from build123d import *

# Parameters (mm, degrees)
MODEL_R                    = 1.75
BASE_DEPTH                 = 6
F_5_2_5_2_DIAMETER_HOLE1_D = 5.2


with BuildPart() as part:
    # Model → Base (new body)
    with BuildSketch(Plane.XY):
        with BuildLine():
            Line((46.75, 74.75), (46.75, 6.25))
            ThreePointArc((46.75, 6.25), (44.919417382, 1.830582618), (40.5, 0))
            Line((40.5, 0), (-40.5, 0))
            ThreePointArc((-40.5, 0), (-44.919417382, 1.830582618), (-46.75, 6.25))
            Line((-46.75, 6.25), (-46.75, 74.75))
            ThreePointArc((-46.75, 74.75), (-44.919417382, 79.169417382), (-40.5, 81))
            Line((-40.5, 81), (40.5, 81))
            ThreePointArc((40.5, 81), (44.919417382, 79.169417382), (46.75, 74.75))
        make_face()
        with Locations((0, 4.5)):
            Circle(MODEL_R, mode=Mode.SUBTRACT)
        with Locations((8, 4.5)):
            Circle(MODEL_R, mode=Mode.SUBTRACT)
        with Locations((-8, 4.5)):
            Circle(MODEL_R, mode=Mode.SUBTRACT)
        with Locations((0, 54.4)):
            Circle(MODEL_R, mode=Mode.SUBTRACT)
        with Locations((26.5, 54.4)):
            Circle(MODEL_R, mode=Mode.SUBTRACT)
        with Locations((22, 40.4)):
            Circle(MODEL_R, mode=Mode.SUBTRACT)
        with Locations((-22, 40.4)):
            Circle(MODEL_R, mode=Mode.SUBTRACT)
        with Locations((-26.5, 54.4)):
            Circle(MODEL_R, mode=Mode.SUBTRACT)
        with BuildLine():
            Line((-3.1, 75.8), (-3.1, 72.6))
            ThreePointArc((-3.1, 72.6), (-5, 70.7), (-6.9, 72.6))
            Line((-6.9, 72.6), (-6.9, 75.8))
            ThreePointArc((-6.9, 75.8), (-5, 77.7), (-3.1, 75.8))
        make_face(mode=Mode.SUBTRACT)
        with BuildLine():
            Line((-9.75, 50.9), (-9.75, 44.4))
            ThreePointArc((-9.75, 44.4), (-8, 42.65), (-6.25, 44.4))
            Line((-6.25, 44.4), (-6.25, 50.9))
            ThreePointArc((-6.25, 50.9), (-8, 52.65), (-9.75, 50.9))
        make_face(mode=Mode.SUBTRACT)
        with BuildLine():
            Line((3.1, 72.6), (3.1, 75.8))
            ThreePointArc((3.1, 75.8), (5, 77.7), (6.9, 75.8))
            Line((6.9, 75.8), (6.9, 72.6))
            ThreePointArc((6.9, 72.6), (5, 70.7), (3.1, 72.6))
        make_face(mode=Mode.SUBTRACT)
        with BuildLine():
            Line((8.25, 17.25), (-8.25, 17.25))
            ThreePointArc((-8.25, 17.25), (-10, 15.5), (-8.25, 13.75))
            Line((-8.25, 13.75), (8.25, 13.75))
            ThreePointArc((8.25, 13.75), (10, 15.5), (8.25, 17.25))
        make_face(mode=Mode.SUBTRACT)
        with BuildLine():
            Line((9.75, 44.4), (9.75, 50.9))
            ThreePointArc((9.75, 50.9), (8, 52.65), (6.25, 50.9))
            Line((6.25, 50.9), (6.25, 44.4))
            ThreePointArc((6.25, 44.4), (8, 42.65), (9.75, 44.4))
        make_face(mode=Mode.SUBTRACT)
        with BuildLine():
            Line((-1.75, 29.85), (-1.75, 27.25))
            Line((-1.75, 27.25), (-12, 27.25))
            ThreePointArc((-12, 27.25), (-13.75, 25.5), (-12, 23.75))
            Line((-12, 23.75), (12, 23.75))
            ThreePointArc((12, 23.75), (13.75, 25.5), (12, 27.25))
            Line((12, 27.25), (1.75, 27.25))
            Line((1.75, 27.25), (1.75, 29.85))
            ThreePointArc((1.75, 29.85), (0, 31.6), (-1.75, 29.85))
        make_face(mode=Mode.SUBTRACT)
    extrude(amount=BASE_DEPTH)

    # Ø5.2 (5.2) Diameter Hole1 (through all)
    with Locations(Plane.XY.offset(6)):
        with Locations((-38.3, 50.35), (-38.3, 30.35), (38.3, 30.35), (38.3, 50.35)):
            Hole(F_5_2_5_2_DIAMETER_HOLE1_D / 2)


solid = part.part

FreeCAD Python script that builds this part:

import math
import FreeCAD as App
import Part
import Sketcher
Q = App.Units.Quantity

doc = App.newDocument("Part")
body = doc.addObject("PartDesign::Body", "Body")

sketch1 = doc.addObject("Sketcher::SketchObject", "Sketch")
body.addObject(sketch1)
sketch1.AttachmentSupport = (doc.XY_Plane, [""])
sketch1.MapMode = "FlatFace"
sketch1.addGeometry([
    Part.LineSegment(App.Vector(46.8, 6.2, 0), App.Vector(46.8, 74.8, 0)),
    Part.ArcOfCircle(Part.Circle(App.Vector(40.5, 74.7, 0), App.Vector(0, 0, 1), 6.3), math.radians(0), math.radians(90)),
    Part.LineSegment(App.Vector(40.5, 81, 0), App.Vector(-40.5, 81, 0)),
    Part.ArcOfCircle(Part.Circle(App.Vector(-40.5, 74.7, 0), App.Vector(0, 0, 1), 6.3), math.radians(90), math.radians(180)),
    Part.LineSegment(App.Vector(-46.8, 74.8, 0), App.Vector(-46.8, 6.2, 0)),
    Part.ArcOfCircle(Part.Circle(App.Vector(-40.5, 6.3, 0), App.Vector(0, 0, 1), 6.3), math.radians(-180), math.radians(-90)),
    Part.LineSegment(App.Vector(-40.5, 0, 0), App.Vector(40.5, 0, 0)),
    Part.ArcOfCircle(Part.Circle(App.Vector(40.5, 6.3, 0), App.Vector(0, 0, 1), 6.3), math.radians(-90), math.radians(0)),
    Part.Circle(App.Vector(8, 4.5, 0), App.Vector(0, 0, 1), 1.8),
    Part.Circle(App.Vector(0, 4.5, 0), App.Vector(0, 0, 1), 1.8),
    Part.Circle(App.Vector(-8, 4.5, 0), App.Vector(0, 0, 1), 1.8),
    Part.ArcOfCircle(Part.Circle(App.Vector(8.2, 15.5, 0), App.Vector(0, 0, 1), 1.8), math.radians(-90), math.radians(90)),
    Part.LineSegment(App.Vector(8.2, 13.8, 0), App.Vector(-8.2, 13.8, 0)),
    Part.ArcOfCircle(Part.Circle(App.Vector(-8.2, 15.5, 0), App.Vector(0, 0, 1), 1.8), math.radians(90), math.radians(270)),
    Part.LineSegment(App.Vector(-8.2, 17.2, 0), App.Vector(8.2, 17.2, 0)),
    Part.ArcOfCircle(Part.Circle(App.Vector(0, 29.9, 0), App.Vector(0, 0, 1), 1.8), math.radians(0), math.radians(180)),
    Part.LineSegment(App.Vector(1.8, 29.9, 0), App.Vector(1.8, 27.2, 0)),
    Part.LineSegment(App.Vector(1.8, 27.2, 0), App.Vector(12, 27.2, 0)),
    Part.ArcOfCircle(Part.Circle(App.Vector(12, 25.5, 0), App.Vector(0, 0, 1), 1.8), math.radians(-90), math.radians(90)),
    Part.LineSegment(App.Vector(12, 23.8, 0), App.Vector(-12, 23.8, 0)),
    Part.ArcOfCircle(Part.Circle(App.Vector(-12, 25.5, 0), App.Vector(0, 0, 1), 1.8), math.radians(90), math.radians(270)),
    Part.LineSegment(App.Vector(-12, 27.2, 0), App.Vector(-1.8, 27.2, 0)),
    Part.LineSegment(App.Vector(-1.8, 27.2, 0), App.Vector(-1.8, 29.9, 0)),
    Part.Circle(App.Vector(22, 40.4, 0), App.Vector(0, 0, 1), 1.8),
    Part.Circle(App.Vector(26.5, 54.4, 0), App.Vector(0, 0, 1), 1.8),
    Part.ArcOfCircle(Part.Circle(App.Vector(8, 44.4, 0), App.Vector(0, 0, 1), 1.8), math.radians(180), math.radians(360)),
    Part.LineSegment(App.Vector(6.2, 44.4, 0), App.Vector(6.2, 50.9, 0)),
    Part.ArcOfCircle(Part.Circle(App.Vector(8, 50.9, 0), App.Vector(0, 0, 1), 1.8), math.radians(0), math.radians(180)),
    Part.LineSegment(App.Vector(9.8, 50.9, 0), App.Vector(9.8, 44.4, 0)),
    Part.LineSegment(App.Vector(3.1, 72.6, 0), App.Vector(3.1, 75.8, 0)),
    Part.ArcOfCircle(Part.Circle(App.Vector(5, 75.8, 0), App.Vector(0, 0, 1), 1.9), math.radians(0), math.radians(180)),
    Part.LineSegment(App.Vector(6.9, 75.8, 0), App.Vector(6.9, 72.6, 0)),
    Part.ArcOfCircle(Part.Circle(App.Vector(5, 72.6, 0), App.Vector(0, 0, 1), 1.9), math.radians(180), math.radians(360)),
    Part.ArcOfCircle(Part.Circle(App.Vector(-8, 50.9, 0), App.Vector(0, 0, 1), 1.8), math.radians(0), math.radians(180)),
    Part.LineSegment(App.Vector(-6.2, 50.9, 0), App.Vector(-6.2, 44.4, 0)),
    Part.ArcOfCircle(Part.Circle(App.Vector(-8, 44.4, 0), App.Vector(0, 0, 1), 1.8), math.radians(180), math.radians(360)),
    Part.LineSegment(App.Vector(-9.8, 44.4, 0), App.Vector(-9.8, 50.9, 0)),
    Part.Circle(App.Vector(0, 54.4, 0), App.Vector(0, 0, 1), 1.8),
    Part.Circle(App.Vector(-22, 40.4, 0), App.Vector(0, 0, 1), 1.8),
    Part.Circle(App.Vector(-26.5, 54.4, 0), App.Vector(0, 0, 1), 1.8),
    Part.LineSegment(App.Vector(-3.1, 75.8, 0), App.Vector(-3.1, 72.6, 0)),
    Part.ArcOfCircle(Part.Circle(App.Vector(-5, 72.6, 0), App.Vector(0, 0, 1), 1.9), math.radians(180), math.radians(360)),
    Part.LineSegment(App.Vector(-6.9, 72.6, 0), App.Vector(-6.9, 75.8, 0)),
    Part.ArcOfCircle(Part.Circle(App.Vector(-5, 75.8, 0), App.Vector(0, 0, 1), 1.9), math.radians(0), math.radians(180)),
], False)
sketch1.addConstraint([
    Sketcher.Constraint("Tangent", 0, 2, 1, 1),
    Sketcher.Constraint("Tangent", 1, 2, 2, 1),
    Sketcher.Constraint("Tangent", 2, 2, 3, 1),
    Sketcher.Constraint("Tangent", 3, 2, 4, 1),
    Sketcher.Constraint("Tangent", 4, 2, 5, 1),
    Sketcher.Constraint("Tangent", 5, 2, 6, 1),
    Sketcher.Constraint("Tangent", 6, 2, 7, 1),
    Sketcher.Constraint("Tangent", 7, 2, 0, 1),
    Sketcher.Constraint("Tangent", 11, 1, 12, 1),
    Sketcher.Constraint("Tangent", 12, 2, 13, 2),
    Sketcher.Constraint("Tangent", 13, 1, 14, 1),
    Sketcher.Constraint("Tangent", 14, 2, 11, 2),
    Sketcher.Constraint("Tangent", 15, 1, 16, 1),
    Sketcher.Constraint("Coincident", 16, 2, 17, 1),
    Sketcher.Constraint("Tangent", 17, 2, 18, 2),
    Sketcher.Constraint("Tangent", 18, 1, 19, 1),
    Sketcher.Constraint("Tangent", 19, 2, 20, 2),
    Sketcher.Constraint("Tangent", 20, 1, 21, 1),
    Sketcher.Constraint("Coincident", 21, 2, 22, 1),
    Sketcher.Constraint("Tangent", 22, 2, 15, 2),
    Sketcher.Constraint("Tangent", 25, 1, 26, 1),
    Sketcher.Constraint("Tangent", 26, 2, 27, 2),
    Sketcher.Constraint("Tangent", 27, 1, 28, 1),
    Sketcher.Constraint("Tangent", 28, 2, 25, 2),
    Sketcher.Constraint("Tangent", 29, 2, 30, 2),
    Sketcher.Constraint("Tangent", 30, 1, 31, 1),
    Sketcher.Constraint("Tangent", 31, 2, 32, 2),
    Sketcher.Constraint("Tangent", 32, 1, 29, 1),
    Sketcher.Constraint("Tangent", 33, 1, 34, 1),
    Sketcher.Constraint("Tangent", 34, 2, 35, 2),
    Sketcher.Constraint("Tangent", 35, 1, 36, 1),
    Sketcher.Constraint("Tangent", 36, 2, 33, 2),
    Sketcher.Constraint("Tangent", 40, 2, 41, 2),
    Sketcher.Constraint("Tangent", 41, 1, 42, 1),
    Sketcher.Constraint("Tangent", 42, 2, 43, 2),
    Sketcher.Constraint("Tangent", 43, 1, 40, 1),
    Sketcher.Constraint("Vertical", 0),
    Sketcher.Constraint("Horizontal", 2),
    Sketcher.Constraint("Vertical", 4),
    Sketcher.Constraint("Horizontal", 6),
    Sketcher.Constraint("Horizontal", 12),
    Sketcher.Constraint("Horizontal", 14),
    Sketcher.Constraint("Vertical", 16),
    Sketcher.Constraint("Horizontal", 17),
    Sketcher.Constraint("Horizontal", 19),
    Sketcher.Constraint("Horizontal", 21),
    Sketcher.Constraint("Vertical", 22),
    Sketcher.Constraint("Vertical", 26),
    Sketcher.Constraint("Vertical", 28),
    Sketcher.Constraint("Vertical", 29),
    Sketcher.Constraint("Vertical", 31),
    Sketcher.Constraint("Vertical", 34),
    Sketcher.Constraint("Vertical", 36),
    Sketcher.Constraint("Vertical", 40),
    Sketcher.Constraint("Vertical", 42),
    Sketcher.Constraint("Equal", 1, 3),
    Sketcher.Constraint("Equal", 3, 5),
    Sketcher.Constraint("Equal", 5, 7),
    Sketcher.Constraint("Equal", 8, 9),
    Sketcher.Constraint("Equal", 9, 10),
    Sketcher.Constraint("Equal", 10, 11),
    Sketcher.Constraint("Equal", 13, 15),
    Sketcher.Constraint("Equal", 15, 18),
    Sketcher.Constraint("Equal", 18, 20),
    Sketcher.Constraint("Equal", 20, 23),
    Sketcher.Constraint("Equal", 23, 24),
    Sketcher.Constraint("Equal", 24, 25),
    Sketcher.Constraint("Equal", 27, 33),
    Sketcher.Constraint("Equal", 35, 37),
    Sketcher.Constraint("Equal", 37, 38),
    Sketcher.Constraint("Equal", 38, 39),
    Sketcher.Constraint("Equal", 32, 41),
    Sketcher.Constraint("Symmetric", 5, 2, 6, 2, -1, 1),
    Sketcher.Constraint("Symmetric", 8, 3, 10, 3, -2),
    Sketcher.Constraint("Symmetric", 27, 3, 33, 3, -2),
    Sketcher.Constraint("Symmetric", 23, 3, 38, 3, -2),
    Sketcher.Constraint("Symmetric", 24, 3, 39, 3, -2),
    Sketcher.Constraint("Symmetric", 32, 3, 41, 3, -2),
    Sketcher.Constraint("PointOnObject", 9, 3, -2),
    Sketcher.Constraint("PointOnObject", 15, 3, -2),
    Sketcher.Constraint("PointOnObject", 37, 3, -2),
    Sketcher.Constraint("Horizontal", 8, 3, 9, 3),
    Sketcher.Constraint("Horizontal", 25, 3, 35, 3),
    Sketcher.Constraint("Horizontal", 24, 3, 37, 3),
    Sketcher.Constraint("Horizontal", 30, 3, 43, 3),
    Sketcher.Constraint("Vertical", 8, 3, 25, 3),
    Sketcher.Constraint("Equal", 17, 21),
    Sketcher.Constraint("Diameter", 8, Q("3.5 mm")),
    Sketcher.Constraint("Radius", 30, Q("1.9 mm")),
    Sketcher.Constraint("DistanceX", 2, 2, 2, 1, Q("81 mm")),
    Sketcher.Constraint("DistanceX", 19, 2, 19, 1, Q("24 mm")),
    Sketcher.Constraint("Radius", 1, Q("6.25 mm")),
    Sketcher.Constraint("DistanceX", 12, 2, 12, 1, Q("16.5 mm")),
    Sketcher.Constraint("DistanceY", 0, 1, 0, 2, Q("68.5 mm")),
    Sketcher.Constraint("DistanceY", 16, 2, 16, 1, Q("2.6 mm")),
    Sketcher.Constraint("DistanceY", 26, 1, 26, 2, Q("6.5 mm")),
    Sketcher.Constraint("DistanceY", 29, 1, 29, 2, Q("3.2 mm")),
    Sketcher.Constraint("DistanceX", -1, 1, 8, 3, Q("8 mm")),
    Sketcher.Constraint("DistanceX", -1, 1, 23, 3, Q("22 mm")),
    Sketcher.Constraint("DistanceX", -1, 1, 30, 3, Q("5 mm")),
    Sketcher.Constraint("DistanceY", -1, 1, 8, 3, Q("4.5 mm")),
    Sketcher.Constraint("DistanceY", -1, 1, 11, 3, Q("15.5 mm")),
    Sketcher.Constraint("DistanceY", -1, 1, 18, 3, Q("25.5 mm")),
    Sketcher.Constraint("DistanceY", -1, 1, 23, 3, Q("40.4 mm")),
    Sketcher.Constraint("DistanceX", -1, 1, 24, 3, Q("26.5 mm")),
    Sketcher.Constraint("DistanceY", -1, 1, 24, 3, Q("54.4 mm")),
    Sketcher.Constraint("DistanceY", -1, 1, 25, 3, Q("44.4 mm")),
    Sketcher.Constraint("DistanceY", -1, 1, 30, 3, Q("75.8 mm")),
    Sketcher.Constraint("DistanceX", -1, 1, 11, 3, Q("8.25 mm")),
])
pad1 = doc.addObject("PartDesign::Pad", "Pad")
body.addObject(pad1)
pad1.Profile = sketch1
pad1.Length = 6

sketch2 = doc.addObject("Sketcher::SketchObject", "Sketch001")
body.addObject(sketch2)
sketch2.AttachmentSupport = (doc.XY_Plane, [""])
sketch2.MapMode = "FlatFace"
sketch2.AttachmentOffset = App.Placement(App.Vector(0, 0, 6), App.Rotation())
sketch2.addGeometry([
    Part.Circle(App.Vector(-38.3, 50.4, 0), App.Vector(0, 0, 1), 2.6),
    Part.Circle(App.Vector(-38.3, 30.4, 0), App.Vector(0, 0, 1), 2.6),
    Part.Circle(App.Vector(38.3, 30.4, 0), App.Vector(0, 0, 1), 2.6),
    Part.Circle(App.Vector(38.3, 50.4, 0), App.Vector(0, 0, 1), 2.6),
], False)
sketch2.addConstraint([
    Sketcher.Constraint("Equal", 0, 1),
    Sketcher.Constraint("Equal", 1, 2),
    Sketcher.Constraint("Equal", 2, 3),
    Sketcher.Constraint("Symmetric", 1, 3, 2, 3, -2),
    Sketcher.Constraint("Symmetric", 0, 3, 3, 3, -2),
    Sketcher.Constraint("Vertical", 0, 3, 1, 3),
    Sketcher.Constraint("Diameter", 0, Q("5.2 mm")),
    Sketcher.Constraint("DistanceY", 1, 3, 0, 3, Q("20 mm")),
    Sketcher.Constraint("DistanceX", 0, 3, -1, 1, Q("38.3 mm")),
    Sketcher.Constraint("DistanceY", -1, 1, 0, 3, Q("50.35 mm")),
])
doc.recompute()
hole = doc.addObject("PartDesign::Hole", "Hole")
body.addObject(hole)
hole.Profile = sketch2
hole.ThreadType = "None"
hole.Diameter = 5.2
hole.DepthType = "ThroughAll"

doc.recompute()
